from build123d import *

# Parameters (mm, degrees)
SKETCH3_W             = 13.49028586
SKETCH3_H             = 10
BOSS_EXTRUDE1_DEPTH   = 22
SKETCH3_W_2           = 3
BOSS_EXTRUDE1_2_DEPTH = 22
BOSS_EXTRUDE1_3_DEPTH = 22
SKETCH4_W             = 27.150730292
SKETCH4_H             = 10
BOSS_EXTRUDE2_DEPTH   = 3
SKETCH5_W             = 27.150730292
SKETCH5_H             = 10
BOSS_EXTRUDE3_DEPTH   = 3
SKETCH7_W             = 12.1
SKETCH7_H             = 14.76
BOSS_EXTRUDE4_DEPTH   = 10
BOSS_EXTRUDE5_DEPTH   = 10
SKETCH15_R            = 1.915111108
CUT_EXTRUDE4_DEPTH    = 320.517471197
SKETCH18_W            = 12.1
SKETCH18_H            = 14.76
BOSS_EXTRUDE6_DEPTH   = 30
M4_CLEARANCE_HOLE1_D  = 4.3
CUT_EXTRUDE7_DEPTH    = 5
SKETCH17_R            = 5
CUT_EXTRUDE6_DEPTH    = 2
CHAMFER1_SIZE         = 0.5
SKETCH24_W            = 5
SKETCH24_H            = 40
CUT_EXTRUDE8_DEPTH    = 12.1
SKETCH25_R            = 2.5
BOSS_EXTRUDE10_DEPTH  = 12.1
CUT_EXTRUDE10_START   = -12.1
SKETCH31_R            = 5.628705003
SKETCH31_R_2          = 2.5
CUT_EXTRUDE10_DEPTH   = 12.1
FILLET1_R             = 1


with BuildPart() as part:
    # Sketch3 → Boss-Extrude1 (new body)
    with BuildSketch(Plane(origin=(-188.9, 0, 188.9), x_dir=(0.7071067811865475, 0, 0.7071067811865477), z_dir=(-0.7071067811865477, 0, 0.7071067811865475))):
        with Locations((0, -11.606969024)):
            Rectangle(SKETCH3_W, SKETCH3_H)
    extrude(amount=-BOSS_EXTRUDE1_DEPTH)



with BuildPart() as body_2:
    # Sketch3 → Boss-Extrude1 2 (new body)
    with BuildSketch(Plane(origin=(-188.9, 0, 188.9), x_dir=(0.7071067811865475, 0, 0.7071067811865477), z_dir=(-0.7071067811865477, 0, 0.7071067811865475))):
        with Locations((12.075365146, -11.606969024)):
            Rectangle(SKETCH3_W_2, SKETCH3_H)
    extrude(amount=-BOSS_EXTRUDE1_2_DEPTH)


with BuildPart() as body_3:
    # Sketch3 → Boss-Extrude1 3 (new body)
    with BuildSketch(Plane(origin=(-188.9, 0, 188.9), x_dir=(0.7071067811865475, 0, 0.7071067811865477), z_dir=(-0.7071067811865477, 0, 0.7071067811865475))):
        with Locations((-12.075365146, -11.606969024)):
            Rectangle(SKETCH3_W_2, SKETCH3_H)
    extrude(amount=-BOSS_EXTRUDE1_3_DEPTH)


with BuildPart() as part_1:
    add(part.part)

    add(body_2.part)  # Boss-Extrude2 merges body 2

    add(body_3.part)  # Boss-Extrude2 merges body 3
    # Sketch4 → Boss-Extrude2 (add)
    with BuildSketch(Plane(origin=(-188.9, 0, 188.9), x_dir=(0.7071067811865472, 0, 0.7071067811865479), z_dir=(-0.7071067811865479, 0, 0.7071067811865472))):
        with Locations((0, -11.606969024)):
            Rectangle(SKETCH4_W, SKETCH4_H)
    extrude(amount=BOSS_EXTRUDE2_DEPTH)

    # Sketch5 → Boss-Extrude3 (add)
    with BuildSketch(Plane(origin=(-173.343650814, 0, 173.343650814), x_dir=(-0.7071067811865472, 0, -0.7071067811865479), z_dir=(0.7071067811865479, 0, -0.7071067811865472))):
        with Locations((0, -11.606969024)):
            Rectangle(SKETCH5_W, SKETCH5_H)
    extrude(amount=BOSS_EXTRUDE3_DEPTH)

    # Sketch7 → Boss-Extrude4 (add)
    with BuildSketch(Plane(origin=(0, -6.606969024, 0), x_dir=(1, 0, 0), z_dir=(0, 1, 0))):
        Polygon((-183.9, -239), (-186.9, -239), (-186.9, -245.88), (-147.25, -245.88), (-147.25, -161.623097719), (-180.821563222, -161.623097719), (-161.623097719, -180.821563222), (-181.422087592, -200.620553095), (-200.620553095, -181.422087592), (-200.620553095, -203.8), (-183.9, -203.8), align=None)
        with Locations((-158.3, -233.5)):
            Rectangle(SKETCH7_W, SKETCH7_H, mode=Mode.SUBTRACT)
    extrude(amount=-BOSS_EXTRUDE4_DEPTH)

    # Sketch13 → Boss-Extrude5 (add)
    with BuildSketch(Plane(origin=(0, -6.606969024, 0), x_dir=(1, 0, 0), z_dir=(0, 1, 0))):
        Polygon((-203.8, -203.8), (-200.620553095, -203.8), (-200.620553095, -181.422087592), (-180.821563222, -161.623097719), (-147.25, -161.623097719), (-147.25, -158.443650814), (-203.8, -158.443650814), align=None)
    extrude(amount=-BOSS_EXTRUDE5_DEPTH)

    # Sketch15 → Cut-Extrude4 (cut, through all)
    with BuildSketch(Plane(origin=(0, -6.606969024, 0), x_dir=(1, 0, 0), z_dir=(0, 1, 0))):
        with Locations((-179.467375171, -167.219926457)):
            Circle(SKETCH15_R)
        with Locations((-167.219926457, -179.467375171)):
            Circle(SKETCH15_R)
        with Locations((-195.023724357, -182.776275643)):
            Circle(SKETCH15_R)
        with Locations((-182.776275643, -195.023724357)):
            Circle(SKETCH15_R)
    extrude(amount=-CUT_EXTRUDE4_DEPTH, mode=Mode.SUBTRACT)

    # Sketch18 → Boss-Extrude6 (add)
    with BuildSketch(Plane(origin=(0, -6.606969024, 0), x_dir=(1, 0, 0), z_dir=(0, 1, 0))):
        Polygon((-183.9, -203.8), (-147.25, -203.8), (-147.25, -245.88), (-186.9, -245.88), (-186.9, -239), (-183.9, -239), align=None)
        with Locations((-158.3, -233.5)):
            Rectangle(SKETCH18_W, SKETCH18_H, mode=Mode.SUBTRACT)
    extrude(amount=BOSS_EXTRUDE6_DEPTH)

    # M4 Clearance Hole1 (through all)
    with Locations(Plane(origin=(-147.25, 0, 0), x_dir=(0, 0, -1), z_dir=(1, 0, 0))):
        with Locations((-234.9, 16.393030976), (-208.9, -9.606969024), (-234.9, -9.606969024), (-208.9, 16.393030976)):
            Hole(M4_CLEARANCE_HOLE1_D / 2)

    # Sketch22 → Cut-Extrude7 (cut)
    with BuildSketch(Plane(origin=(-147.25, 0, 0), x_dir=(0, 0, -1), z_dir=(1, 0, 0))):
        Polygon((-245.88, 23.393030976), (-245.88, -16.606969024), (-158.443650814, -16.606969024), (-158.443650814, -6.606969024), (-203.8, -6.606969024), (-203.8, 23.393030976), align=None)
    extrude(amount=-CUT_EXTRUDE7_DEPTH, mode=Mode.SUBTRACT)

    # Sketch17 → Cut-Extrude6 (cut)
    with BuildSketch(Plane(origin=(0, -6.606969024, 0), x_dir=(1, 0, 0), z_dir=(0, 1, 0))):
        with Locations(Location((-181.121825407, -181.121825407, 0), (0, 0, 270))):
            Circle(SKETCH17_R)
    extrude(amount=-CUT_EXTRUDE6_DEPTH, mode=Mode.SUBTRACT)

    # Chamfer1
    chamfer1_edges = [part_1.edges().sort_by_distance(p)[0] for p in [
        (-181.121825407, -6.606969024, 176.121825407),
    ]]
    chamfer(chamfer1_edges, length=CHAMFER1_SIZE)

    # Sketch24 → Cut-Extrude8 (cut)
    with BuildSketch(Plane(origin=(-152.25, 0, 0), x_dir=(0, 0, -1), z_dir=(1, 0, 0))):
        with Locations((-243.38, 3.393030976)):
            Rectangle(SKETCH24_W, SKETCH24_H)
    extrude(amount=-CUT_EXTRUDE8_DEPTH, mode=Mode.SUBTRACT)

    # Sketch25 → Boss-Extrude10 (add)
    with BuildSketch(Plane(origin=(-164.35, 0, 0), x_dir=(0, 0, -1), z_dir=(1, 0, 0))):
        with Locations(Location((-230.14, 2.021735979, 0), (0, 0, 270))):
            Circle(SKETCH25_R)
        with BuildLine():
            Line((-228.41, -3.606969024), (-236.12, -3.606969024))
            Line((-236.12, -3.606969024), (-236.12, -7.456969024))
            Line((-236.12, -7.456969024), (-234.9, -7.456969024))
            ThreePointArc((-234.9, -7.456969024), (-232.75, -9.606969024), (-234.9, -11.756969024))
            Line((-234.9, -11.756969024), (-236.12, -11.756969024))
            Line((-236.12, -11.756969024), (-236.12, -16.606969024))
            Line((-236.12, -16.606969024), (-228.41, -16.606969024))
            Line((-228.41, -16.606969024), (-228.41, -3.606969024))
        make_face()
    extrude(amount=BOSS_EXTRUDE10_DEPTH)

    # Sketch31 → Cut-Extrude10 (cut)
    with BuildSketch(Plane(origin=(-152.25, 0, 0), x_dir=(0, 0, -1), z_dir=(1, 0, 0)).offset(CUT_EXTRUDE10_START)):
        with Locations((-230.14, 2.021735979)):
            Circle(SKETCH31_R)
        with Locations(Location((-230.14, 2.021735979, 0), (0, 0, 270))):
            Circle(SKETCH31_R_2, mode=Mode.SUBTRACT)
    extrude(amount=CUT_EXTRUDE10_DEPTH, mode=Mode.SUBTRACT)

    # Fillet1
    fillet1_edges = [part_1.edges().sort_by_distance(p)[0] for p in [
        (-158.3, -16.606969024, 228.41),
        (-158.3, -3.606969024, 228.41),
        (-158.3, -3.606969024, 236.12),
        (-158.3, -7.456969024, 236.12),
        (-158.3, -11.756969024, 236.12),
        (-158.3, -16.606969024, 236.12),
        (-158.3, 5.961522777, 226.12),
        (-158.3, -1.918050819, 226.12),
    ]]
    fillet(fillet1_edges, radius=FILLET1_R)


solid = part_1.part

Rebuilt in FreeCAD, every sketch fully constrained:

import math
import FreeCAD as App
import Part
import Sketcher
Q = App.Units.Quantity


def edges_at(feature, points):
    """Names of the edges that pass closest to the given points."""
    edges = feature.Shape.Edges
    near = lambda p: min(range(len(edges)), key=lambda i: edges[i].distToShape(Part.Vertex(*p))[0])
    return sorted({f"Edge{near(p) + 1}" for p in points})

doc = App.newDocument("Part")
body = doc.addObject("PartDesign::Body", "Body")

# Sketch on an angled plane
sketch1 = body.newObject("Sketcher::SketchObject", "Sketch")
sketch1.Placement = App.Placement(App.Vector(-188.9, 0, 188.9), App.Rotation(App.Vector(0.707106781, 0, 0.707106781), App.Vector(0, 0.999999999, 0), App.Vector(-0.707106781, 0, 0.707106781), "ZXY"))
sketch1.addGeometry([
    Part.LineSegment(App.Vector(-6.745143, -6.606969, 0), App.Vector(-6.745143, -16.606969, 0)),
    Part.LineSegment(App.Vector(-6.745143, -16.606969, 0), App.Vector(6.745143, -16.606969, 0)),
    Part.LineSegment(App.Vector(6.745143, -16.606969, 0), App.Vector(6.745143, -6.606969, 0)),
    Part.LineSegment(App.Vector(6.745143, -6.606969, 0), App.Vector(-6.745143, -6.606969, 0)),
], False)
sketch1.addConstraint([
    Sketcher.Constraint("Coincident", 0, 2, 1, 1),
    Sketcher.Constraint("Coincident", 1, 2, 2, 1),
    Sketcher.Constraint("Coincident", 2, 2, 3, 1),
    Sketcher.Constraint("Coincident", 3, 2, 0, 1),
    Sketcher.Constraint("Vertical", 0),
    Sketcher.Constraint("Horizontal", 1),
    Sketcher.Constraint("Vertical", 2),
    Sketcher.Constraint("Horizontal", 3),
    Sketcher.Constraint("DistanceY", 0, 2, 0, 1, Q("10 mm")),
    Sketcher.Constraint("DistanceX", 1, 1, 1, 2, Q("13.490286 mm")),
    Sketcher.Constraint("DistanceY", 0, 2, -1, 1, Q("16.606969 mm")),
    Sketcher.Constraint("DistanceX", 0, 2, -1, 1, Q("6.745143 mm")),
])
pad1 = body.newObject("PartDesign::Pad", "Pad")
pad1.Profile = sketch1
pad1.Length = 22
pad1.Reversed = True
body2 = doc.addObject("PartDesign::Body", "Body001")

# Sketch on an angled plane
sketch2 = body2.newObject("Sketcher::SketchObject", "Sketch001")
sketch2.Placement = App.Placement(App.Vector(-188.9, 0, 188.9), App.Rotation(App.Vector(0.707106781, 0, 0.707106781), App.Vector(0, 0.999999999, 0), App.Vector(-0.707106781, 0, 0.707106781), "ZXY"))
sketch2.addGeometry([
    Part.LineSegment(App.Vector(10.575365, -6.606969, 0), App.Vector(10.575365, -16.606969, 0)),
    Part.LineSegment(App.Vector(10.575365, -16.606969, 0), App.Vector(13.575365, -16.606969, 0)),
    Part.LineSegment(App.Vector(13.575365, -16.606969, 0), App.Vector(13.575365, -6.606969, 0)),
    Part.LineSegment(App.Vector(13.575365, -6.606969, 0), App.Vector(10.575365, -6.606969, 0)),
], False)
sketch2.addConstraint([
    Sketcher.Constraint("Coincident", 0, 2, 1, 1),
    Sketcher.Constraint("Coincident", 1, 2, 2, 1),
    Sketcher.Constraint("Coincident", 2, 2, 3, 1),
    Sketcher.Constraint("Coincident", 3, 2, 0, 1),
    Sketcher.Constraint("Vertical", 0),
    Sketcher.Constraint("Horizontal", 1),
    Sketcher.Constraint("Vertical", 2),
    Sketcher.Constraint("Horizontal", 3),
    Sketcher.Constraint("DistanceX", 1, 1, 1, 2, Q("3 mm")),
    Sketcher.Constraint("DistanceY", 0, 2, 0, 1, Q("10 mm")),
    Sketcher.Constraint("DistanceY", 0, 2, -1, 1, Q("16.606969 mm")),
    Sketcher.Constraint("DistanceX", -1, 1, 0, 2, Q("10.575365 mm")),
])
pad2 = body2.newObject("PartDesign::Pad", "Pad001")
pad2.Profile = sketch2
pad2.Length = 22
pad2.Reversed = True
body3 = doc.addObject("PartDesign::Body", "Body002")

# Sketch on an angled plane
sketch3 = body3.newObject("Sketcher::SketchObject", "Sketch002")
sketch3.Placement = App.Placement(App.Vector(-188.9, 0, 188.9), App.Rotation(App.Vector(0.707106781, 0, 0.707106781), App.Vector(0, 0.999999999, 0), App.Vector(-0.707106781, 0, 0.707106781), "ZXY"))
sketch3.addGeometry([
    Part.LineSegment(App.Vector(-13.575365, -6.606969, 0), App.Vector(-13.575365, -16.606969, 0)),
    Part.LineSegment(App.Vector(-13.575365, -16.606969, 0), App.Vector(-10.575365, -16.606969, 0)),
    Part.LineSegment(App.Vector(-10.575365, -16.606969, 0), App.Vector(-10.575365, -6.606969, 0)),
    Part.LineSegment(App.Vector(-10.575365, -6.606969, 0), App.Vector(-13.575365, -6.606969, 0)),
], False)
sketch3.addConstraint([
    Sketcher.Constraint("Coincident", 0, 2, 1, 1),
    Sketcher.Constraint("Coincident", 1, 2, 2, 1),
    Sketcher.Constraint("Coincident", 2, 2, 3, 1),
    Sketcher.Constraint("Coincident", 3, 2, 0, 1),
    Sketcher.Constraint("Vertical", 0),
    Sketcher.Constraint("Horizontal", 1),
    Sketcher.Constraint("Vertical", 2),
    Sketcher.Constraint("Horizontal", 3),
    Sketcher.Constraint("DistanceX", 1, 1, 1, 2, Q("3 mm")),
    Sketcher.Constraint("DistanceY", 0, 2, 0, 1, Q("10 mm")),
    Sketcher.Constraint("DistanceY", 0, 2, -1, 1, Q("16.606969 mm")),
    Sketcher.Constraint("DistanceX", 0, 2, -1, 1, Q("13.575365 mm")),
])
pad3 = body3.newObject("PartDesign::Pad", "Pad002")
pad3.Profile = sketch3
pad3.Length = 22
pad3.Reversed = True
body.AllowCompound = True
doc.recompute()

boolean = body.newObject("PartDesign::Boolean", "Boolean")
boolean.Type = "Fuse"
boolean.addObjects([body2])
doc.recompute()

boolean2 = body.newObject("PartDesign::Boolean", "Boolean001")
boolean2.Type = "Fuse"
boolean2.addObjects([body3])

# Sketch on an angled plane
sketch4 = body.newObject("Sketcher::SketchObject", "Sketch003")
sketch4.Placement = App.Placement(App.Vector(-188.9, 0, 188.9), App.Rotation(App.Vector(0.707106781, 0, 0.707106781), App.Vector(0, 0.999999999, 0), App.Vector(-0.707106781, 0, 0.707106781), "ZXY"))
sketch4.addGeometry([
    Part.LineSegment(App.Vector(-13.575365, -6.606969, 0), App.Vector(-13.575365, -16.606969, 0)),
    Part.LineSegment(App.Vector(-13.575365, -16.606969, 0), App.Vector(13.575365, -16.606969, 0)),
    Part.LineSegment(App.Vector(13.575365, -16.606969, 0), App.Vector(13.575365, -6.606969, 0)),
    Part.LineSegment(App.Vector(13.575365, -6.606969, 0), App.Vector(-13.575365, -6.606969, 0)),
], False)
sketch4.addConstraint([
    Sketcher.Constraint("Coincident", 0, 2, 1, 1),
    Sketcher.Constraint("Coincident", 1, 2, 2, 1),
    Sketcher.Constraint("Coincident", 2, 2, 3, 1),
    Sketcher.Constraint("Coincident", 3, 2, 0, 1),
    Sketcher.Constraint("Vertical", 0),
    Sketcher.Constraint("Horizontal", 1),
    Sketcher.Constraint("Vertical", 2),
    Sketcher.Constraint("Horizontal", 3),
    Sketcher.Constraint("DistanceY", 0, 2, 0, 1, Q("10 mm")),
    Sketcher.Constraint("DistanceX", 1, 1, 1, 2, Q("27.15073 mm")),
    Sketcher.Constraint("DistanceY", 0, 2, -1, 1, Q("16.606969 mm")),
    Sketcher.Constraint("DistanceX", 0, 2, -1, 1, Q("13.575365 mm")),
])
pad4 = body.newObject("PartDesign::Pad", "Pad003")
pad4.Profile = sketch4
pad4.Length = 3

# Sketch on an angled plane
sketch5 = body.newObject("Sketcher::SketchObject", "Sketch004")
sketch5.Placement = App.Placement(App.Vector(-173.343651, 0, 173.343651), App.Rotation(App.Vector(-0.707106781, 0, -0.707106781), App.Vector(0, 0.999999999, 0), App.Vector(0.707106781, 0, -0.707106781), "ZXY"))
sketch5.addGeometry([
    Part.LineSegment(App.Vector(-13.575365, -6.606969, 0), App.Vector(-13.575365, -16.606969, 0)),
    Part.LineSegment(App.Vector(-13.575365, -16.606969, 0), App.Vector(13.575365, -16.606969, 0)),
    Part.LineSegment(App.Vector(13.575365, -16.606969, 0), App.Vector(13.575365, -6.606969, 0)),
    Part.LineSegment(App.Vector(13.575365, -6.606969, 0), App.Vector(-13.575365, -6.606969, 0)),
], False)
sketch5.addConstraint([
    Sketcher.Constraint("Coincident", 0, 2, 1, 1),
    Sketcher.Constraint("Coincident", 1, 2, 2, 1),
    Sketcher.Constraint("Coincident", 2, 2, 3, 1),
    Sketcher.Constraint("Coincident", 3, 2, 0, 1),
    Sketcher.Constraint("Vertical", 0),
    Sketcher.Constraint("Horizontal", 1),
    Sketcher.Constraint("Vertical", 2),
    Sketcher.Constraint("Horizontal", 3),
    Sketcher.Constraint("DistanceY", 0, 2, 0, 1, Q("10 mm")),
    Sketcher.Constraint("DistanceX", 1, 1, 1, 2, Q("27.15073 mm")),
    Sketcher.Constraint("DistanceY", 0, 2, -1, 1, Q("16.606969 mm")),
    Sketcher.Constraint("DistanceX", 0, 2, -1, 1, Q("13.575365 mm")),
])
pad5 = body.newObject("PartDesign::Pad", "Pad004")
pad5.Profile = sketch5
pad5.Length = 3

# Sketch on XZ plane
sketch6 = body.newObject("Sketcher::SketchObject", "Sketch005")
sketch6.AttachmentSupport = (doc.getObject("XZ_Plane"), [""])
sketch6.MapMode = "FlatFace"
sketch6.AttachmentOffset = App.Placement(App.Vector(0, 0, 6.606969), App.Rotation())
sketch6.addGeometry([
    Part.LineSegment(App.Vector(-183.9, 239, 0), App.Vector(-186.9, 239, 0)),  # 0
    Part.LineSegment(App.Vector(-186.9, 239, 0), App.Vector(-186.9, 245.88, 0)),  # 1
    Part.LineSegment(App.Vector(-186.9, 245.88, 0), App.Vector(-147.25, 245.88, 0)),  # 2
    Part.LineSegment(App.Vector(-147.25, 245.88, 0), App.Vector(-147.25, 161.623098, 0)),  # 3
    Part.LineSegment(App.Vector(-147.25, 161.623098, 0), App.Vector(-180.821563, 161.623098, 0)),  # 4
    Part.LineSegment(App.Vector(-180.821563, 161.623098, 0), App.Vector(-161.623098, 180.821563, 0)),  # 5
    Part.LineSegment(App.Vector(-161.623098, 180.821563, 0), App.Vector(-181.422088, 200.620553, 0)),  # 6
    Part.LineSegment(App.Vector(-181.422088, 200.620553, 0), App.Vector(-200.620553, 181.422088, 0)),  # 7
    Part.LineSegment(App.Vector(-200.620553, 181.422088, 0), App.Vector(-200.620553, 203.8, 0)),  # 8
    Part.LineSegment(App.Vector(-200.620553, 203.8, 0), App.Vector(-183.9, 203.8, 0)),  # 9
    Part.LineSegment(App.Vector(-183.9, 203.8, 0), App.Vector(-183.9, 239, 0)),  # 10
    Part.LineSegment(App.Vector(-152.25, 240.88, 0), App.Vector(-164.35, 240.88, 0)),  # 11
    Part.LineSegment(App.Vector(-164.35, 240.88, 0), App.Vector(-164.35, 226.12, 0)),  # 12
    Part.LineSegment(App.Vector(-164.35, 226.12, 0), App.Vector(-152.25, 226.12, 0)),  # 13
    Part.LineSegment(App.Vector(-152.25, 226.12, 0), App.Vector(-152.25, 240.88, 0)),  # 14
], False)
sketch6.addConstraint([
    Sketcher.Constraint("Coincident", 0, 2, 1, 1),
    Sketcher.Constraint("Coincident", 1, 2, 2, 1),
    Sketcher.Constraint("Coincident", 2, 2, 3, 1),
    Sketcher.Constraint("Coincident", 3, 2, 4, 1),
    Sketcher.Constraint("Coincident", 4, 2, 5, 1),
    Sketcher.Constraint("Coincident", 5, 2, 6, 1),
    Sketcher.Constraint("Coincident", 6, 2, 7, 1),
    Sketcher.Constraint("Coincident", 7, 2, 8, 1),
    Sketcher.Constraint("Coincident", 8, 2, 9, 1),
    Sketcher.Constraint("Coincident", 9, 2, 10, 1),
    Sketcher.Constraint("Coincident", 10, 2, 0, 1),
    Sketcher.Constraint("Coincident", 11, 2, 12, 1),
    Sketcher.Constraint("Coincident", 12, 2, 13, 1),
    Sketcher.Constraint("Coincident", 13, 2, 14, 1),
    Sketcher.Constraint("Coincident", 14, 2, 11, 1),
    Sketcher.Constraint("Horizontal", 0),
    Sketcher.Constraint("Vertical", 1),
    Sketcher.Constraint("Horizontal", 2),
    Sketcher.Constraint("Vertical", 3),
    Sketcher.Constraint("Horizontal", 4),
    Sketcher.Constraint("Vertical", 8),
    Sketcher.Constraint("Horizontal", 9),
    Sketcher.Constraint("Vertical", 10),
    Sketcher.Constraint("Horizontal", 11),
    Sketcher.Constraint("Vertical", 12),
    Sketcher.Constraint("Horizontal", 13),
    Sketcher.Constraint("Vertical", 14),
    Sketcher.Constraint("Perpendicular", 5, 6),
    Sketcher.Constraint("Perpendicular", 6, 7),
    Sketcher.Constraint("Equal", 5, 7),
    Sketcher.Constraint("DistanceX", 0, 2, 0, 1, Q("3 mm")),
    Sketcher.Constraint("Angle", 5, Q("45 deg")),
    Sketcher.Constraint("Distance", 6, Q("28 mm")),
    Sketcher.Constraint("DistanceX", 11, 2, 11, 1, Q("12.1 mm")),
    Sketcher.Constraint("DistanceY", 10, 1, 10, 2, Q("35.2 mm")),
    Sketcher.Constraint("DistanceY", -1, 1, 0, 2, Q("239 mm")),
    Sketcher.Constraint("DistanceY", 11, 2, 2, 2, Q("5 mm")),
    Sketcher.Constraint("DistanceX", 13, 2, 2, 2, Q("5 mm")),
    Sketcher.Constraint("DistanceX", 2, 1, 2, 2, Q("39.65 mm")),
    Sketcher.Constraint("DistanceY", 1, 1, 1, 2, Q("6.88 mm")),
    Sketcher.Constraint("DistanceY", 12, 2, 12, 1, Q("14.76 mm")),
    Sketcher.Constraint("DistanceX", 0, 2, -1, 1, Q("186.9 mm")),
    Sketcher.Constraint("Distance", 5, Q("27.15073 mm")),
    Sketcher.Constraint("DistanceX", 4, 2, 4, 1, Q("33.571563 mm")),
    Sketcher.Constraint("DistanceY", 3, 2, 3, 1, Q("84.256902 mm")),
])
pad6 = body.newObject("PartDesign::Pad", "Pad005")
pad6.Profile = sketch6
pad6.Length = 10

# Sketch on XZ plane
sketch7 = body.newObject("Sketcher::SketchObject", "Sketch006")
sketch7.AttachmentSupport = (doc.getObject("XZ_Plane"), [""])
sketch7.MapMode = "FlatFace"
sketch7.AttachmentOffset = App.Placement(App.Vector(0, 0, 6.606969), App.Rotation())
sketch7.addGeometry([
    Part.LineSegment(App.Vector(-203.8, 203.8, 0), App.Vector(-200.620553, 203.8, 0)),  # 0
    Part.LineSegment(App.Vector(-200.620553, 203.8, 0), App.Vector(-200.620553, 181.422088, 0)),  # 1
    Part.LineSegment(App.Vector(-200.620553, 181.422088, 0), App.Vector(-180.821563, 161.623098, 0)),  # 2
    Part.LineSegment(App.Vector(-180.821563, 161.623098, 0), App.Vector(-147.25, 161.623098, 0)),  # 3
    Part.LineSegment(App.Vector(-147.25, 161.623098, 0), App.Vector(-147.25, 158.443651, 0)),  # 4
    Part.LineSegment(App.Vector(-147.25, 158.443651, 0), App.Vector(-203.8, 158.443651, 0)),  # 5
    Part.LineSegment(App.Vector(-203.8, 158.443651, 0), App.Vector(-203.8, 203.8, 0)),  # 6
], False)
sketch7.addConstraint([
    Sketcher.Constraint("Coincident", 0, 2, 1, 1),
    Sketcher.Constraint("Coincident", 1, 2, 2, 1),
    Sketcher.Constraint("Coincident", 2, 2, 3, 1),
    Sketcher.Constraint("Coincident", 3, 2, 4, 1),
    Sketcher.Constraint("Coincident", 4, 2, 5, 1),
    Sketcher.Constraint("Coincident", 5, 2, 6, 1),
    Sketcher.Constraint("Coincident", 6, 2, 0, 1),
    Sketcher.Constraint("Horizontal", 0),
    Sketcher.Constraint("Vertical", 1),
    Sketcher.Constraint("Horizontal", 3),
    Sketcher.Constraint("Vertical", 4),
    Sketcher.Constraint("Horizontal", 5),
    Sketcher.Constraint("Vertical", 6),
    Sketcher.Constraint("Equal", 0, 4),
    Sketcher.Constraint("Angle", 2, Q("-45 deg")),
    Sketcher.Constraint("Distance", 2, Q("28 mm")),
    Sketcher.Constraint("DistanceX", 5, 2, 5, 1, Q("56.55 mm")),
    Sketcher.Constraint("DistanceY", -1, 1, 0, 2, Q("203.8 mm")),
    Sketcher.Constraint("DistanceX", 5, 2, -1, 1, Q("203.8 mm")),
    Sketcher.Constraint("DistanceY", 6, 1, 6, 2, Q("45.356349 mm")),
    Sketcher.Constraint("DistanceX", 0, 1, 0, 2, Q("3.179447 mm")),
])
pad7 = body.newObject("PartDesign::Pad", "Pad006")
pad7.Profile = sketch7
pad7.Length = 10

# Sketch on XZ plane
sketch8 = body.newObject("Sketcher::SketchObject", "Sketch007")
sketch8.AttachmentSupport = (doc.getObject("XZ_Plane"), [""])
sketch8.MapMode = "FlatFace"
sketch8.AttachmentOffset = App.Placement(App.Vector(0, 0, 6.606969), App.Rotation())
sketch8.addGeometry([
    Part.Circle(App.Vector(-179.467375, 167.219926, 0), App.Vector(0, 0, 1), 1.915111),
    Part.Circle(App.Vector(-167.219926, 179.467375, 0), App.Vector(0, 0, 1), 1.915111),
    Part.Circle(App.Vector(-195.023724, 182.776276, 0), App.Vector(0, 0, 1), 1.915111),
    Part.Circle(App.Vector(-182.776276, 195.023724, 0), App.Vector(0, 0, 1), 1.915111),
], False)
sketch8.addConstraint([
    Sketcher.Constraint("Equal", 0, 1),
    Sketcher.Constraint("Equal", 1, 2),
    Sketcher.Constraint("Equal", 2, 3),
    Sketcher.Constraint("Diameter", 0, Q("3.830222 mm")),
    Sketcher.Constraint("DistanceY", 1, 3, 2, 3, Q("3.3089 mm")),
    Sketcher.Constraint("DistanceX", 3, 3, 0, 3, Q("3.3089 mm")),
    Sketcher.Constraint("DistanceX", 0, 3, 1, 3, Q("12.247449 mm")),
    Sketcher.Constraint("DistanceY", 0, 3, 1, 3, Q("12.247449 mm")),
    Sketcher.Constraint("DistanceX", 2, 3, 0, 3, Q("15.556349 mm")),
    Sketcher.Constraint("DistanceY", 2, 3, 3, 3, Q("12.247449 mm")),
    Sketcher.Constraint("DistanceX", 0, 3, -1, 1, Q("179.467375 mm")),
    Sketcher.Constraint("DistanceY", -1, 1, 0, 3, Q("167.219926 mm")),
])
pocket1 = body.newObject("PartDesign::Pocket", "Pocket")
pocket1.Profile = sketch8
pocket1.Type = "ThroughAll"
pocket1.Reversed = True

# Sketch on XZ plane
sketch9 = body.newObject("Sketcher::SketchObject", "Sketch008")
sketch9.AttachmentSupport = (doc.getObject("XZ_Plane"), [""])
sketch9.MapMode = "FlatFace"
sketch9.AttachmentOffset = App.Placement(App.Vector(0, 0, 6.606969), App.Rotation())
sketch9.addGeometry([
    Part.LineSegment(App.Vector(-147.25, 203.8, 0), App.Vector(-183.9, 203.8, 0)),  # 0
    Part.LineSegment(App.Vector(-183.9, 203.8, 0), App.Vector(-183.9, 239, 0)),  # 1
    Part.LineSegment(App.Vector(-183.9, 239, 0), App.Vector(-186.9, 239, 0)),  # 2
    Part.LineSegment(App.Vector(-186.9, 239, 0), App.Vector(-186.9, 245.88, 0)),  # 3
    Part.LineSegment(App.Vector(-186.9, 245.88, 0), App.Vector(-147.25, 245.88, 0)),  # 4
    Part.LineSegment(App.Vector(-147.25, 245.88, 0), App.Vector(-147.25, 203.8, 0)),  # 5
    Part.LineSegment(App.Vector(-164.35, 240.88, 0), App.Vector(-164.35, 226.12, 0)),  # 6
    Part.LineSegment(App.Vector(-164.35, 226.12, 0), App.Vector(-152.25, 226.12, 0)),  # 7
    Part.LineSegment(App.Vector(-152.25, 226.12, 0), App.Vector(-152.25, 240.88, 0)),  # 8
    Part.LineSegment(App.Vector(-152.25, 240.88, 0), App.Vector(-164.35, 240.88, 0)),  # 9
], False)
sketch9.addConstraint([
    Sketcher.Constraint("Coincident", 0, 2, 1, 1),
    Sketcher.Constraint("Coincident", 1, 2, 2, 1),
    Sketcher.Constraint("Coincident", 2, 2, 3, 1),
    Sketcher.Constraint("Coincident", 3, 2, 4, 1),
    Sketcher.Constraint("Coincident", 4, 2, 5, 1),
    Sketcher.Constraint("Coincident", 5, 2, 0, 1),
    Sketcher.Constraint("Coincident", 6, 2, 7, 1),
    Sketcher.Constraint("Coincident", 7, 2, 8, 1),
    Sketcher.Constraint("Coincident", 8, 2, 9, 1),
    Sketcher.Constraint("Coincident", 9, 2, 6, 1),
    Sketcher.Constraint("Horizontal", 0),
    Sketcher.Constraint("Vertical", 1),
    Sketcher.Constraint("Horizontal", 2),
    Sketcher.Constraint("Vertical", 3),
    Sketcher.Constraint("Horizontal", 4),
    Sketcher.Constraint("Vertical", 5),
    Sketcher.Constraint("Vertical", 6),
    Sketcher.Constraint("Horizontal", 7),
    Sketcher.Constraint("Vertical", 8),
    Sketcher.Constraint("Horizontal", 9),
    Sketcher.Constraint("DistanceX", 2, 2, 2, 1, Q("3 mm")),
    Sketcher.Constraint("DistanceX", 7, 1, 7, 2, Q("12.1 mm")),
    Sketcher.Constraint("DistanceY", 1, 1, 1, 2, Q("35.2 mm")),
    Sketcher.Constraint("DistanceY", -1, 1, 1, 2, Q("239 mm")),
    Sketcher.Constraint("DistanceX", 7, 2, 4, 2, Q("5 mm")),
    Sketcher.Constraint("DistanceY", 8, 2, 4, 2, Q("5 mm")),
    Sketcher.Constraint("DistanceX", 0, 2, 0, 1, Q("36.65 mm")),
    Sketcher.Constraint("DistanceY", 3, 1, 3, 2, Q("6.88 mm")),
    Sketcher.Constraint("DistanceY", 6, 2, 6, 1, Q("14.76 mm")),
    Sketcher.Constraint("DistanceX", 0, 2, -1, 1, Q("183.9 mm")),
])
pad8 = body.newObject("PartDesign::Pad", "Pad007")
pad8.Profile = sketch9
pad8.Length = 30
pad8.Reversed = True

# Sketch on YZ plane
sketch10 = body.newObject("Sketcher::SketchObject", "Sketch009")
sketch10.AttachmentSupport = (doc.getObject("YZ_Plane"), [""])
sketch10.MapMode = "FlatFace"
sketch10.AttachmentOffset = App.Placement(App.Vector(0, 0, -147.25), App.Rotation())
sketch10.addGeometry([
    Part.Circle(App.Vector(16.393031, 234.9, 0), App.Vector(0, 0, 1), 2.15),
    Part.Circle(App.Vector(-9.606969, 208.9, 0), App.Vector(0, 0, 1), 2.15),
    Part.Circle(App.Vector(-9.606969, 234.9, 0), App.Vector(0, 0, 1), 2.15),
    Part.Circle(App.Vector(16.393031, 208.9, 0), App.Vector(0, 0, 1), 2.15),
], False)
sketch10.addConstraint([
    Sketcher.Constraint("Equal", 0, 1),
    Sketcher.Constraint("Equal", 1, 2),
    Sketcher.Constraint("Equal", 2, 3),
    Sketcher.Constraint("Horizontal", 0, 3, 2, 3),
    Sketcher.Constraint("Horizontal", 1, 3, 3, 3),
    Sketcher.Constraint("Vertical", 1, 3, 2, 3),
    Sketcher.Constraint("Vertical", 0, 3, 3, 3),
    Sketcher.Constraint("Diameter", 0, Q("4.3 mm")),
    Sketcher.Constraint("DistanceX", 1, 3, 0, 3, Q("26 mm")),
    Sketcher.Constraint("DistanceY", 1, 3, 0, 3, Q("26 mm")),
    Sketcher.Constraint("DistanceY", -1, 1, 0, 3, Q("234.9 mm")),
    Sketcher.Constraint("DistanceX", -1, 1, 0, 3, Q("16.393031 mm")),
])
doc.recompute()
hole = body.newObject("PartDesign::Hole", "Hole")
hole.Profile = sketch10
hole.ThreadType = "None"
hole.Diameter = 4.3
hole.DepthType = "ThroughAll"

# Sketch on YZ plane
sketch11 = body.newObject("Sketcher::SketchObject", "Sketch010")
sketch11.AttachmentSupport = (doc.getObject("YZ_Plane"), [""])
sketch11.MapMode = "FlatFace"
sketch11.AttachmentOffset = App.Placement(App.Vector(0, 0, -147.25), App.Rotation())
sketch11.addGeometry([
    Part.LineSegment(App.Vector(23.393031, 245.88, 0), App.Vector(-16.606969, 245.88, 0)),  # 0
    Part.LineSegment(App.Vector(-16.606969, 245.88, 0), App.Vector(-16.606969, 158.443651, 0)),  # 1
    Part.LineSegment(App.Vector(-16.606969, 158.443651, 0), App.Vector(-6.606969, 158.443651, 0)),  # 2
    Part.LineSegment(App.Vector(-6.606969, 158.443651, 0), App.Vector(-6.606969, 203.8, 0)),  # 3
    Part.LineSegment(App.Vector(-6.606969, 203.8, 0), App.Vector(23.393031, 203.8, 0)),  # 4
    Part.LineSegment(App.Vector(23.393031, 203.8, 0), App.Vector(23.393031, 245.88, 0)),  # 5
], False)
sketch11.addConstraint([
    Sketcher.Constraint("Coincident", 0, 2, 1, 1),
    Sketcher.Constraint("Coincident", 1, 2, 2, 1),
    Sketcher.Constraint("Coincident", 2, 2, 3, 1),
    Sketcher.Constraint("Coincident", 3, 2, 4, 1),
    Sketcher.Constraint("Coincident", 4, 2, 5, 1),
    Sketcher.Constraint("Coincident", 5, 2, 0, 1),
    Sketcher.Constraint("Horizontal", 0),
    Sketcher.Constraint("Vertical", 1),
    Sketcher.Constraint("Horizontal", 2),
    Sketcher.Constraint("Vertical", 3),
    Sketcher.Constraint("Horizontal", 4),
    Sketcher.Constraint("Vertical", 5),
    Sketcher.Constraint("DistanceX", 0, 2, 0, 1, Q("40 mm")),
    Sketcher.Constraint("DistanceX", 2, 1, 2, 2, Q("10 mm")),
    Sketcher.Constraint("DistanceY", 5, 1, 5, 2, Q("42.08 mm")),
    Sketcher.Constraint("DistanceY", -1, 1, 3, 2, Q("203.8 mm")),
    Sketcher.Constraint("DistanceY", 1, 2, 1, 1, Q("87.436349 mm")),
    Sketcher.Constraint("DistanceX", 0, 2, -1, 1, Q("16.606969 mm")),
])
pocket2 = body.newObject("PartDesign::Pocket", "Pocket001")
pocket2.Profile = sketch11
pocket2.Length = 5

# Sketch on XZ plane
sketch12 = body.newObject("Sketcher::SketchObject", "Sketch011")
sketch12.AttachmentSupport = (doc.getObject("XZ_Plane"), [""])
sketch12.MapMode = "FlatFace"
sketch12.AttachmentOffset = App.Placement(App.Vector(0, 0, 6.606969), App.Rotation())
sketch12.addGeometry(Part.Circle(App.Vector(-181.121825, 181.121825, 0), App.Vector(0, 0, 1), 5), False)
sketch12.addConstraint([
    Sketcher.Constraint("Diameter", 0, Q("10 mm")),
    Sketcher.Constraint("DistanceX", 0, 3, -1, 1, Q("181.121825 mm")),
    Sketcher.Constraint("DistanceY", -1, 1, 0, 3, Q("181.121825 mm")),
])
pocket3 = body.newObject("PartDesign::Pocket", "Pocket002")
pocket3.Profile = sketch12
pocket3.Length = 2
pocket3.Reversed = True
doc.recompute()

chamfer = body.newObject("PartDesign::Chamfer", "Chamfer")
chamfer.Base = (pocket3, edges_at(pocket3, [(-181.122, -6.607, 176.122)]))
chamfer.Size = 0.5

# Sketch on YZ plane
sketch13 = body.newObject("Sketcher::SketchObject", "Sketch012")
sketch13.AttachmentSupport = (doc.getObject("YZ_Plane"), [""])
sketch13.MapMode = "FlatFace"
sketch13.AttachmentOffset = App.Placement(App.Vector(0, 0, -152.25), App.Rotation())
sketch13.addGeometry([
    Part.LineSegment(App.Vector(23.393031, 245.88, 0), App.Vector(-16.606969, 245.88, 0)),
    Part.LineSegment(App.Vector(-16.606969, 245.88, 0), App.Vector(-16.606969, 240.88, 0)),
    Part.LineSegment(App.Vector(-16.606969, 240.88, 0), App.Vector(23.393031, 240.88, 0)),
    Part.LineSegment(App.Vector(23.393031, 240.88, 0), App.Vector(23.393031, 245.88, 0)),
], False)
sketch13.addConstraint([
    Sketcher.Constraint("Coincident", 0, 2, 1, 1),
    Sketcher.Constraint("Coincident", 1, 2, 2, 1),
    Sketcher.Constraint("Coincident", 2, 2, 3, 1),
    Sketcher.Constraint("Coincident", 3, 2, 0, 1),
    Sketcher.Constraint("Horizontal", 0),
    Sketcher.Constraint("Vertical", 1),
    Sketcher.Constraint("Horizontal", 2),
    Sketcher.Constraint("Vertical", 3),
    Sketcher.Constraint("DistanceX", 0, 2, 0, 1, Q("40 mm")),
    Sketcher.Constraint("DistanceY", 1, 2, 1, 1, Q("5 mm")),
    Sketcher.Constraint("DistanceY", -1, 1, 0, 2, Q("245.88 mm")),
    Sketcher.Constraint("DistanceX", 0, 2, -1, 1, Q("16.606969 mm")),
])
pocket4 = body.newObject("PartDesign::Pocket", "Pocket003")
pocket4.Profile = sketch13
pocket4.Length = 12.1

# Sketch on YZ plane
sketch14 = body.newObject("Sketcher::SketchObject", "Sketch013")
sketch14.AttachmentSupport = (doc.getObject("YZ_Plane"), [""])
sketch14.MapMode = "FlatFace"
sketch14.AttachmentOffset = App.Placement(App.Vector(0, 0, -164.35), App.Rotation())
sketch14.addGeometry([
    Part.Circle(App.Vector(2.021736, 230.14, 0), App.Vector(0, 0, 1), 2.5),  # 0
    Part.LineSegment(App.Vector(-3.606969, 228.41, 0), App.Vector(-3.606969, 236.12, 0)),  # 1
    Part.LineSegment(App.Vector(-3.606969, 236.12, 0), App.Vector(-7.456969, 236.12, 0)),  # 2
    Part.LineSegment(App.Vector(-7.456969, 236.12, 0), App.Vector(-7.456969, 234.9, 0)),  # 3
    Part.ArcOfCircle(Part.Circle(App.Vector(-9.606969, 234.9, 0), App.Vector(0, 0, 1), 2.15), math.radians(180), math.radians(360)),  # 4
    Part.LineSegment(App.Vector(-11.756969, 234.9, 0), App.Vector(-11.756969, 236.12, 0)),  # 5
    Part.LineSegment(App.Vector(-11.756969, 236.12, 0), App.Vector(-16.606969, 236.12, 0)),  # 6
    Part.LineSegment(App.Vector(-16.606969, 236.12, 0), App.Vector(-16.606969, 228.41, 0)),  # 7
    Part.LineSegment(App.Vector(-16.606969, 228.41, 0), App.Vector(-3.606969, 228.41, 0)),  # 8
], False)
sketch14.addConstraint([
    Sketcher.Constraint("Coincident", 1, 2, 2, 1),
    Sketcher.Constraint("Coincident", 2, 2, 3, 1),
    Sketcher.Constraint("Tangent", 3, 2, 4, 2),
    Sketcher.Constraint("Tangent", 4, 1, 5, 1),
    Sketcher.Constraint("Coincident", 5, 2, 6, 1),
    Sketcher.Constraint("Coincident", 6, 2, 7, 1),
    Sketcher.Constraint("Coincident", 7, 2, 8, 1),
    Sketcher.Constraint("Coincident", 8, 2, 1, 1),
    Sketcher.Constraint("Vertical", 1),
    Sketcher.Constraint("Horizontal", 2),
    Sketcher.Constraint("Vertical", 3),
    Sketcher.Constraint("Vertical", 5),
    Sketcher.Constraint("Horizontal", 6),
    Sketcher.Constraint("Vertical", 7),
    Sketcher.Constraint("Horizontal", 8),
    Sketcher.Constraint("Horizontal", 2, 2, 5, 2),
    Sketcher.Constraint("Diameter", 0, Q("5 mm")),
    Sketcher.Constraint("DistanceX", 8, 1, 8, 2, Q("13 mm")),
    Sketcher.Constraint("Radius", 4, Q("2.15 mm")),
    Sketcher.Constraint("DistanceX", 4, 3, 1, 2, Q("6 mm")),
    Sketcher.Constraint("DistanceY", 1, 1, 1, 2, Q("7.71 mm")),
    Sketcher.Constraint("DistanceY", 3, 2, 3, 1, Q("1.22 mm")),
    Sketcher.Constraint("DistanceY", -1, 1, 4, 3, Q("234.9 mm")),
    Sketcher.Constraint("DistanceY", -1, 1, 0, 3, Q("230.14 mm")),
    Sketcher.Constraint("DistanceX", 4, 3, -1, 1, Q("9.606969 mm")),
    Sketcher.Constraint("DistanceX", -1, 1, 0, 3, Q("2.021736 mm")),
])
pad9 = body.newObject("PartDesign::Pad", "Pad008")
pad9.Profile = sketch14
pad9.Length = 12.1

# Sketch on YZ plane
sketch15 = body.newObject("Sketcher::SketchObject", "Sketch014")
sketch15.AttachmentSupport = (doc.getObject("YZ_Plane"), [""])
sketch15.MapMode = "FlatFace"
sketch15.AttachmentOffset = App.Placement(App.Vector(0, 0, -164.35), App.Rotation())
sketch15.addGeometry([
    Part.Circle(App.Vector(2.021736, 230.14, 0), App.Vector(0, 0, 1), 5.628705),
    Part.Circle(App.Vector(2.021736, 230.14, 0), App.Vector(0, 0, 1), 2.5),
], False)
sketch15.addConstraint([
    Sketcher.Constraint("Coincident", 1, 3, 0, 3),
    Sketcher.Constraint("Diameter", 1, Q("5 mm")),
    Sketcher.Constraint("Diameter", 0, Q("11.25741 mm")),
    Sketcher.Constraint("DistanceY", -1, 1, 0, 3, Q("230.14 mm")),
    Sketcher.Constraint("DistanceX", -1, 1, 0, 3, Q("2.021736 mm")),
])
pocket5 = body.newObject("PartDesign::Pocket", "Pocket004")
pocket5.Profile = sketch15
pocket5.Length = 12.1
pocket5.Reversed = True
doc.recompute()

fillet = body.newObject("PartDesign::Fillet", "Fillet")
fillet.Base = (pocket5, edges_at(pocket5, [
    (-158.3, -16.607, 228.41),
    (-158.3, -3.607, 228.41),
    (-158.3, -3.607, 236.12),
    (-158.3, -7.457, 236.12),
    (-158.3, -11.757, 236.12),
    (-158.3, -16.607, 236.12),
    (-158.3, 5.962, 226.12),
    (-158.3, -1.918, 226.12),
]))
fillet.Radius = 1

doc.recompute()
